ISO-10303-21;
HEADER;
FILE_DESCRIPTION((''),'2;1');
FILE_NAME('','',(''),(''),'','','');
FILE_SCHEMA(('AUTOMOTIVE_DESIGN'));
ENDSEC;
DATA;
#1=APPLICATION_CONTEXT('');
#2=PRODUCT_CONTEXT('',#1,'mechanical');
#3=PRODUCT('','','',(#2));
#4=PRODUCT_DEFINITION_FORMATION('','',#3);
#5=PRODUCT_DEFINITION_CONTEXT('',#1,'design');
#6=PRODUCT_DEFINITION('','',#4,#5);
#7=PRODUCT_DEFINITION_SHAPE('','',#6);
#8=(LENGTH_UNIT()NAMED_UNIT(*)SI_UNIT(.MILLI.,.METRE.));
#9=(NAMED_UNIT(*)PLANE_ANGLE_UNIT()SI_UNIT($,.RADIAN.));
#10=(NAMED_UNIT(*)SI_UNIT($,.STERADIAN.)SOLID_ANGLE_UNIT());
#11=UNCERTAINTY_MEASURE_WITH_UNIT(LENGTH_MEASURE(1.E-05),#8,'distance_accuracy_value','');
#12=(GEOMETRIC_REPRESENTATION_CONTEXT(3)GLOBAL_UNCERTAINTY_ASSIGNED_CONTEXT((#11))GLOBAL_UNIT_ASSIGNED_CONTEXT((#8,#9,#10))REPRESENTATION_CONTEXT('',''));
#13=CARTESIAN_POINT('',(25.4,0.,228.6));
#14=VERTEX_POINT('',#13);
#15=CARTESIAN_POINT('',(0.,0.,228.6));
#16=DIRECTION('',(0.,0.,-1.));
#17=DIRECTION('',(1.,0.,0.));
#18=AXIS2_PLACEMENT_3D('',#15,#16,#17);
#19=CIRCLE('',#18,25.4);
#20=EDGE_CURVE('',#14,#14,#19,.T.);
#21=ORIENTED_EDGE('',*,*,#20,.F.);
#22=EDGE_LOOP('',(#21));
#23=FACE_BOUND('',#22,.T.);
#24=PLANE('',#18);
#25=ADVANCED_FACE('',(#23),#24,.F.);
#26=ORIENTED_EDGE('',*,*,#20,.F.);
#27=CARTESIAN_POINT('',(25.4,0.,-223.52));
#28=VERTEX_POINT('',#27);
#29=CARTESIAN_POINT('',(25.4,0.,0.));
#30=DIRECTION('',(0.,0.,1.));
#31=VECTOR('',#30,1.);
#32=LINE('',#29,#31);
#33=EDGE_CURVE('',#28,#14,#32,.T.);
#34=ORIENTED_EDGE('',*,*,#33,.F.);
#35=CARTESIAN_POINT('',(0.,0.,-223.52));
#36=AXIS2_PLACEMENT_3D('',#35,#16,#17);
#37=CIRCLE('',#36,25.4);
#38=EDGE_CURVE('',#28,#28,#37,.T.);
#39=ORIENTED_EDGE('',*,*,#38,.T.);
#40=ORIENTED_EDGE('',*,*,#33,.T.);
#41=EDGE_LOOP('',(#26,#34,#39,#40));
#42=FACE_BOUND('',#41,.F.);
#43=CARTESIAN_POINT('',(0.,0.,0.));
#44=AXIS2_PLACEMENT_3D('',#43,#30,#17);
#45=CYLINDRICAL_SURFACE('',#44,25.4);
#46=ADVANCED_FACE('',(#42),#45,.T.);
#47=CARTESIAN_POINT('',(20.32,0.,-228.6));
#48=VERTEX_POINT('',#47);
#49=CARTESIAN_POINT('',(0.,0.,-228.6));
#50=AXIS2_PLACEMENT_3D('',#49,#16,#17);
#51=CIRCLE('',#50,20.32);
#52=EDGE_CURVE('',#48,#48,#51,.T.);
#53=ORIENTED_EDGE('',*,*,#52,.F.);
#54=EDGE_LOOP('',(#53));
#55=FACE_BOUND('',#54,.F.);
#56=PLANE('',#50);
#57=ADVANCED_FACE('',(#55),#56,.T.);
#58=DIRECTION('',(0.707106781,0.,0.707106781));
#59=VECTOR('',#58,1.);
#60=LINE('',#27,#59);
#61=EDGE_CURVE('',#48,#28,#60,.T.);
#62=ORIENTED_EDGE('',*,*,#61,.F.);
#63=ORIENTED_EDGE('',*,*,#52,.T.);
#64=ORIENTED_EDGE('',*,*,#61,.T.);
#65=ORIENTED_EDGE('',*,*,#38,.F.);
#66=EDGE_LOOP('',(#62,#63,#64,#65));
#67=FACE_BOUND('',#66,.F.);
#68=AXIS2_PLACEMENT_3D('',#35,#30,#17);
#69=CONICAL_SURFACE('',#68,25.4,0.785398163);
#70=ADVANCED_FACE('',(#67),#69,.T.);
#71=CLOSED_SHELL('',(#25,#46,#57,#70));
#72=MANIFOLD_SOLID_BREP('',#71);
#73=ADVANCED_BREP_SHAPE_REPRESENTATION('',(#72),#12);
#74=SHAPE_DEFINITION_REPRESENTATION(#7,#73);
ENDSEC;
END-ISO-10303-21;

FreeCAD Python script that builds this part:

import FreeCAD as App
import Part
import Sketcher

V = App.Vector
Q = App.Units.Quantity


def edges_at(feature, points):
    """Names of the edges that pass closest to the given points."""
    edges = feature.Shape.Edges
    near = lambda p: min(range(len(edges)), key=lambda i: edges[i].distToShape(Part.Vertex(*p))[0])
    return sorted({f"Edge{near(p) + 1}" for p in points})

doc = App.newDocument("Part")
params = doc.addObject("Spreadsheet::Sheet", "Params")
for row, (alias, value) in enumerate([
    ("sketch1_width", "1 in"),
    ("sketch1_height", "18 in"),
    ("revolution_angle", "360 deg"),
    ("chamfer_size", "0.2 in"),
], start=1):
    params.set(f"A{row}", alias)
    params.set(f"B{row}", "=" + value)
    params.setAlias(f"B{row}", alias)

body = doc.addObject("PartDesign::Body", "Body")

sketch1 = body.newObject("Sketcher::SketchObject", "Sketch")
sketch1.AttachmentSupport = (doc.getObject("XZ_Plane"), [""])
sketch1.MapMode = "FlatFace"
sketch1.addGeometry(Part.LineSegment(V(0, 228.6, 0), V(0, -228.6, 0)), False)
sketch1.addGeometry(Part.LineSegment(V(0, -228.6, 0), V(25.4, -228.6, 0)), False)
sketch1.addGeometry(Part.LineSegment(V(25.4, -228.6, 0), V(25.4, 228.6, 0)), False)
sketch1.addGeometry(Part.LineSegment(V(25.4, 228.6, 0), V(0, 228.6, 0)), False)
sketch1.addConstraint(Sketcher.Constraint("Coincident", 0, 2, 1, 1))
sketch1.addConstraint(Sketcher.Constraint("Coincident", 1, 2, 2, 1))
sketch1.addConstraint(Sketcher.Constraint("Coincident", 2, 2, 3, 1))
sketch1.addConstraint(Sketcher.Constraint("Coincident", 3, 2, 0, 1))
sketch1.addConstraint(Sketcher.Constraint("Vertical", 0))
sketch1.addConstraint(Sketcher.Constraint("Horizontal", 1))
sketch1.addConstraint(Sketcher.Constraint("Vertical", 2))
sketch1.addConstraint(Sketcher.Constraint("Horizontal", 3))
sketch1.addConstraint(Sketcher.Constraint("Symmetric", 0, 2, 3, 2, -1, 1))
sketch1.addConstraint(Sketcher.Constraint("DistanceX", 1, 1, 1, 2, Q("1 in")))
sketch1.addConstraint(Sketcher.Constraint("DistanceY", 0, 2, 0, 1, Q("18 in")))
sketch1.setExpression("Constraints[9]", "Params.sketch1_width")
sketch1.setExpression("Constraints[10]", "Params.sketch1_height")
revolution = body.newObject("PartDesign::Revolution", "Revolution")
revolution.Profile = sketch1
revolution.ReferenceAxis = (sketch1, ["V_Axis"])
revolution.setExpression("Angle", "Params.revolution_angle")
doc.recompute()

chamfer = body.newObject("PartDesign::Chamfer", "Chamfer")
chamfer.Base = (revolution, edges_at(revolution, [(-25.4, 0, -228.6)]))
chamfer.setExpression("Size", "Params.chamfer_size")

doc.recompute()
